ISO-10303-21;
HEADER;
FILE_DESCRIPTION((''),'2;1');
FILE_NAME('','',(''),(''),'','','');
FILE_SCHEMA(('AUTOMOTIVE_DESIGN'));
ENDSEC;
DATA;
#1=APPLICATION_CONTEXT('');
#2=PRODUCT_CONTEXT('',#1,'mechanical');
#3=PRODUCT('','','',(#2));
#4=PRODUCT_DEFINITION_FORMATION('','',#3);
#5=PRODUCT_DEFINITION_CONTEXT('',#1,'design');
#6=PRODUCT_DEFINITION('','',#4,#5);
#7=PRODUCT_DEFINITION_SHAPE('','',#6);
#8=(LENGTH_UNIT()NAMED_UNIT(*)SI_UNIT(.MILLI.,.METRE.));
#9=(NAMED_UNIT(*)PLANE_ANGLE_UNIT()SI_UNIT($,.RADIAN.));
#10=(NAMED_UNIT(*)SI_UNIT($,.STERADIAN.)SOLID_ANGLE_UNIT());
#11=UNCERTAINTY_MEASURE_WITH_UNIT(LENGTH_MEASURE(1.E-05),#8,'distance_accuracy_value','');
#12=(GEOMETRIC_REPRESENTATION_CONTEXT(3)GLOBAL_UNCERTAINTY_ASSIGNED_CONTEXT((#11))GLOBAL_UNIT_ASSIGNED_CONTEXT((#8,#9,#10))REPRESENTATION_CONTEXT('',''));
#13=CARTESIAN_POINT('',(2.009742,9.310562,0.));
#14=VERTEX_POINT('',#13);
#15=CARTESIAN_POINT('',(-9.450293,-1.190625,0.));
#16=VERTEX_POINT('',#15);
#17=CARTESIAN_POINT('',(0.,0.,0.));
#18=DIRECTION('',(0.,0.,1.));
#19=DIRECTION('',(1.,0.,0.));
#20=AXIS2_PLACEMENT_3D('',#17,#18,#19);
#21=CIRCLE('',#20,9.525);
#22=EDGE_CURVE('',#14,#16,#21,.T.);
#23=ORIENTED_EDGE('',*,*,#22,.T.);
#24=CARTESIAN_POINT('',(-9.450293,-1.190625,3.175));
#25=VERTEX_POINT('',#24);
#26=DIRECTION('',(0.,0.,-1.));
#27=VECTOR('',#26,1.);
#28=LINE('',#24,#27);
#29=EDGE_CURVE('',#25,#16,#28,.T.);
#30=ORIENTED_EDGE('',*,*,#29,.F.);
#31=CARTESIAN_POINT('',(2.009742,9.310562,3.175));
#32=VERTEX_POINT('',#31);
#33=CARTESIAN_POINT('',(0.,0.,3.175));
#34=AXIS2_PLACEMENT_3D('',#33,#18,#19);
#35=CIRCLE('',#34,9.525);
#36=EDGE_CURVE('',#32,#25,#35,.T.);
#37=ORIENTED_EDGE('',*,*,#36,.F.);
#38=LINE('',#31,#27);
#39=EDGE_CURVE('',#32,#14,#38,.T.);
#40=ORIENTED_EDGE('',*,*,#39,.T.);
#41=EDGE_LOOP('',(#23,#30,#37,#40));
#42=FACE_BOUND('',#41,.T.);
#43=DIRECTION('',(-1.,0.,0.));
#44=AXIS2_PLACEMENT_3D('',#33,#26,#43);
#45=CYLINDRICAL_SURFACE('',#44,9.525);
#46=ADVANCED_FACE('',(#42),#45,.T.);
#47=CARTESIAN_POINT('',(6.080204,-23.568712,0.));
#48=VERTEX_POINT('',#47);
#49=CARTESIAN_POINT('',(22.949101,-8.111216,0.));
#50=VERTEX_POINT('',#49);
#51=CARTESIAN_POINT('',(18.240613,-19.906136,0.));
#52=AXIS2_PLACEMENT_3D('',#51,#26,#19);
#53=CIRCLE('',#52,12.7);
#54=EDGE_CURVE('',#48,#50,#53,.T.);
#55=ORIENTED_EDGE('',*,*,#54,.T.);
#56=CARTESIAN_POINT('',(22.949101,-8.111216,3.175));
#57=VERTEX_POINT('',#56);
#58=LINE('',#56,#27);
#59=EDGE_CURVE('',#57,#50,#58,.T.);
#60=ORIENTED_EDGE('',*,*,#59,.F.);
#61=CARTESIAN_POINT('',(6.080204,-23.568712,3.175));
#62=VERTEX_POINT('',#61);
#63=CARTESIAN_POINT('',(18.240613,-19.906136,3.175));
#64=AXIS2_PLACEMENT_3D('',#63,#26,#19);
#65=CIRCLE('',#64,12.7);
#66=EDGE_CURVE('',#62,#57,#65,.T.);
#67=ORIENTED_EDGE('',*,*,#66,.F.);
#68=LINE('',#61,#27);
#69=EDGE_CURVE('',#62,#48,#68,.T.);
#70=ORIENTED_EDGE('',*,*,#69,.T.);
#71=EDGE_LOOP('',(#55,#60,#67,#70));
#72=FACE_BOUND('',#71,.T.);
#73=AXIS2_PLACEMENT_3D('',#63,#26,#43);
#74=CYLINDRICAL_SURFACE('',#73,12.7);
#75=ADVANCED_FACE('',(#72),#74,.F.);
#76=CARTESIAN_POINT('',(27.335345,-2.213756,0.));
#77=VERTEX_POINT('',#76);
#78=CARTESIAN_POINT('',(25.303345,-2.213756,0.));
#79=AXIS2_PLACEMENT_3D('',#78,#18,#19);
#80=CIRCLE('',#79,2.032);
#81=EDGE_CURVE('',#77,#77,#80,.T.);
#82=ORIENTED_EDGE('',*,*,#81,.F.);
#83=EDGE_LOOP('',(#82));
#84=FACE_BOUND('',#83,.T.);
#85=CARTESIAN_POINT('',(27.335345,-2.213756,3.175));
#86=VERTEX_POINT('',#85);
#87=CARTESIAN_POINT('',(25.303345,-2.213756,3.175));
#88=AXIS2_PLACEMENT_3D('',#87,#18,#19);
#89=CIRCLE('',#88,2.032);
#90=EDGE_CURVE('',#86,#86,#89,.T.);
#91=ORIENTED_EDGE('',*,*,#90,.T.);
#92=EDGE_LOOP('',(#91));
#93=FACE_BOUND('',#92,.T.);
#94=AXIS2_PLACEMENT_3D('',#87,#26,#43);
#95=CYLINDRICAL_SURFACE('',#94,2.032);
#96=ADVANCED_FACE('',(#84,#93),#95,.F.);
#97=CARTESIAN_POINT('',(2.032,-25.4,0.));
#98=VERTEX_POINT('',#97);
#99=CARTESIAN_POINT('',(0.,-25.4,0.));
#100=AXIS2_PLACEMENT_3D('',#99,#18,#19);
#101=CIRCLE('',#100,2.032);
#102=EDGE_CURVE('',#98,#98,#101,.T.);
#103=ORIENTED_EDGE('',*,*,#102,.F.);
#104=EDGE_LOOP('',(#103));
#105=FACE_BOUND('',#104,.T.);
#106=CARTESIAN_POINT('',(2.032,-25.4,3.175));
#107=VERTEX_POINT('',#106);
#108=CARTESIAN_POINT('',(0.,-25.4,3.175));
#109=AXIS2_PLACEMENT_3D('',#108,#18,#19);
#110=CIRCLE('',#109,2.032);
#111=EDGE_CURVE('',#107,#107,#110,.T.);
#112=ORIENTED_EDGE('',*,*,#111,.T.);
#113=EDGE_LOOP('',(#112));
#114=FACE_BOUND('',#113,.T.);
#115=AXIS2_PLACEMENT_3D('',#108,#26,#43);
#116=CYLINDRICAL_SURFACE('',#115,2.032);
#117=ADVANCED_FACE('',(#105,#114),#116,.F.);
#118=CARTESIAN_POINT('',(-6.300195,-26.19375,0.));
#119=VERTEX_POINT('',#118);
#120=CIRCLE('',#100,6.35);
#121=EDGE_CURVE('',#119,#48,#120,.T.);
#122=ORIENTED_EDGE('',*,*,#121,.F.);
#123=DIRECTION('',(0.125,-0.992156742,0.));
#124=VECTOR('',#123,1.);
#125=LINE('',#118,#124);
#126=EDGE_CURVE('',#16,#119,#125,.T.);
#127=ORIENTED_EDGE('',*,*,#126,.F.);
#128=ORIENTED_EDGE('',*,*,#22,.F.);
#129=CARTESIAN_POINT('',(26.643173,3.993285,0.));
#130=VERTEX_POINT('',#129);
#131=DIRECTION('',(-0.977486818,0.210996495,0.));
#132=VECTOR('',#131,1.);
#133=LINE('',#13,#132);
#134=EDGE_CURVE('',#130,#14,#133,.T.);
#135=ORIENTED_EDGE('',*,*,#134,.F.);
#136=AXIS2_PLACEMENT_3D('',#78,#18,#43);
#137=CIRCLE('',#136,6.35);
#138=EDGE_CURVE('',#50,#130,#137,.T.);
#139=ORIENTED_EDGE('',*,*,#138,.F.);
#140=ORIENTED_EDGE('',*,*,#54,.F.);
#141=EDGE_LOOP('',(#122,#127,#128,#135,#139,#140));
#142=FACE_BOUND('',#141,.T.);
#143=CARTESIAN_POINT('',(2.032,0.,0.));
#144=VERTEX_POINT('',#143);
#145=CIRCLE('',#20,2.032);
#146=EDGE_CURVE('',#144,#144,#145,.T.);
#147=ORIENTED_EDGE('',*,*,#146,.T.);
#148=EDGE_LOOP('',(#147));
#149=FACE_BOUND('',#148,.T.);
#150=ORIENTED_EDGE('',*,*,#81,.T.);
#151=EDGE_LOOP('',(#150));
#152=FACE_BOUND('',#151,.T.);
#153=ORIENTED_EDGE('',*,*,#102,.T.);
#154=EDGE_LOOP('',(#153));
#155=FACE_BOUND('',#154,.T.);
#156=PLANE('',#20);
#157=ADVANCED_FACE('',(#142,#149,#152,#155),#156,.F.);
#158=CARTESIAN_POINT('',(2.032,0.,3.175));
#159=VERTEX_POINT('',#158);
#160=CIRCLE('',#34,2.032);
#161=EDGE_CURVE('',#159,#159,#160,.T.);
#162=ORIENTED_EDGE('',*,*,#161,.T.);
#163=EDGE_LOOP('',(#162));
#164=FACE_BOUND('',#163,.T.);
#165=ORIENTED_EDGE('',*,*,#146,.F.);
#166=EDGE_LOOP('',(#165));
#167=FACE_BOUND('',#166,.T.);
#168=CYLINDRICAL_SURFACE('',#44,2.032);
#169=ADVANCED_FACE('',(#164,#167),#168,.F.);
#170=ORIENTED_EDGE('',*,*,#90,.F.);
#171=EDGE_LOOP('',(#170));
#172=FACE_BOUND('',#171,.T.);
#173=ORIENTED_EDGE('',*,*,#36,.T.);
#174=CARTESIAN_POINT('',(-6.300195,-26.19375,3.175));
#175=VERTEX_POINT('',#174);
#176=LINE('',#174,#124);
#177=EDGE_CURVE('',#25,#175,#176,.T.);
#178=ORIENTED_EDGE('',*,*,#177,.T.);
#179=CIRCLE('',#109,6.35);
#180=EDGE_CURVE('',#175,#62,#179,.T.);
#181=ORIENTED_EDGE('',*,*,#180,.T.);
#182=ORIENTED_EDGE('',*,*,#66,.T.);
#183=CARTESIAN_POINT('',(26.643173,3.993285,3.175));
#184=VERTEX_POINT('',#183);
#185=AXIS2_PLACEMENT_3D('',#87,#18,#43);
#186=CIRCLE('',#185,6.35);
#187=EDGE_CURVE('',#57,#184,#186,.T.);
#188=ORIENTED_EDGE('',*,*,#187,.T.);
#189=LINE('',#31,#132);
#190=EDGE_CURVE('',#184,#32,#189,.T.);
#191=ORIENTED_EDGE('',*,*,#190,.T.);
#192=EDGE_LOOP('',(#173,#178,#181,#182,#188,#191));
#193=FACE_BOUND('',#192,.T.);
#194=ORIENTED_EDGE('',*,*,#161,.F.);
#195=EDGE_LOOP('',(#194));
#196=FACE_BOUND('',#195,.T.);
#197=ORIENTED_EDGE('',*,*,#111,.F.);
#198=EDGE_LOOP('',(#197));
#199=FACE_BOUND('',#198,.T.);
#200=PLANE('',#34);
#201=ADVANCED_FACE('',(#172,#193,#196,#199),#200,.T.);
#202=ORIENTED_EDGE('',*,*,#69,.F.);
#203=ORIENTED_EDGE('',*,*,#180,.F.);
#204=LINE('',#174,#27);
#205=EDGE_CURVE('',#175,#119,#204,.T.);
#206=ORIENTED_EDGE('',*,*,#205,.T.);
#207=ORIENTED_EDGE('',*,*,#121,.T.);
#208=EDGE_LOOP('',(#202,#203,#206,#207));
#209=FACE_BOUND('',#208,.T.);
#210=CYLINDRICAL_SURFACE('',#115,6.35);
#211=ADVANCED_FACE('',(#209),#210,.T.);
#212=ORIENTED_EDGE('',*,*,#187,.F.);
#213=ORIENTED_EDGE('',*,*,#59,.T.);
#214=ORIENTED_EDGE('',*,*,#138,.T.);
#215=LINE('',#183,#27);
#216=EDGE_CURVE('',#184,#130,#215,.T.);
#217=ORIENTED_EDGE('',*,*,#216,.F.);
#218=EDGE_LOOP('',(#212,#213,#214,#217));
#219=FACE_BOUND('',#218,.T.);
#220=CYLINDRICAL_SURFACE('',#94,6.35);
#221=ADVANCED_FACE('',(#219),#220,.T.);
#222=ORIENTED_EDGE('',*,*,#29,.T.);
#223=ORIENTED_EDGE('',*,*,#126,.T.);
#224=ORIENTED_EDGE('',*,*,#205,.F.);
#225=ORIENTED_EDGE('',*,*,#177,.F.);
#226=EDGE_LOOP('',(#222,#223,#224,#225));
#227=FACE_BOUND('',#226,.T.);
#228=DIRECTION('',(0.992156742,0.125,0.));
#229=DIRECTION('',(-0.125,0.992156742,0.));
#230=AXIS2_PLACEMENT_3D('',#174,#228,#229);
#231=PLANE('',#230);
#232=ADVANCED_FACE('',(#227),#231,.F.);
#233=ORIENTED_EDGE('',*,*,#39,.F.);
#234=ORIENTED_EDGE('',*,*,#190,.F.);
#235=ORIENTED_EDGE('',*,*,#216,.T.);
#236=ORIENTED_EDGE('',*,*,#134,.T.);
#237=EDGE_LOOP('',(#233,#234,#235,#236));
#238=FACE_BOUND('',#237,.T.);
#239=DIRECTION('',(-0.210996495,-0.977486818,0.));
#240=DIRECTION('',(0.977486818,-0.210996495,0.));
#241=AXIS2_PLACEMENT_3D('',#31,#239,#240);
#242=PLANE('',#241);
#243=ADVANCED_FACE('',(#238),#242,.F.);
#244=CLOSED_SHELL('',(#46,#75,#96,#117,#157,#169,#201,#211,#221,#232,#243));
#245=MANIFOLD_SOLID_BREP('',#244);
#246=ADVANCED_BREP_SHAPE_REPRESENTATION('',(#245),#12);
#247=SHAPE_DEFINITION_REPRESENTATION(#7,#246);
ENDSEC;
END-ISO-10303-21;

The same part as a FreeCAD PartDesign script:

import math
import FreeCAD as App
import Part
import Sketcher
Q = App.Units.Quantity

doc = App.newDocument("Part")
body = doc.addObject("PartDesign::Body", "Body")

sketch1 = body.newObject("Sketcher::SketchObject", "Sketch")
sketch1.AttachmentSupport = (doc.getObject("XY_Plane"), [""])
sketch1.MapMode = "FlatFace"
sketch1.addGeometry(Part.LineSegment(App.Vector(-9.450293, -1.190625, 0), App.Vector(-6.300195, -26.19375, 0)), False)
sketch1.addGeometry(Part.ArcOfCircle(Part.Circle(App.Vector(0, -25.4, 0), App.Vector(0, 0, 1), 6.35), math.radians(-172.819244), math.radians(16.761701)), False)
sketch1.addGeometry(Part.ArcOfCircle(Part.Circle(App.Vector(18.240613, -19.906136, 0), App.Vector(0, 0, 1), 12.7), math.radians(68.238299), math.radians(196.761701)), False)
sketch1.addGeometry(Part.ArcOfCircle(Part.Circle(App.Vector(25.303345, -2.213756, 0), App.Vector(0, 0, 1), 6.35), math.radians(-111.761701), math.radians(77.819244)), False)
sketch1.addGeometry(Part.LineSegment(App.Vector(26.643173, 3.993285, 0), App.Vector(2.009742, 9.310562, 0)), False)
sketch1.addGeometry(Part.ArcOfCircle(Part.Circle(App.Vector(0, 0, 0), App.Vector(0, 0, 1), 9.525), math.radians(77.819244), math.radians(187.180756)), False)
sketch1.addGeometry(Part.Circle(App.Vector(0, -25.4, 0), App.Vector(0, 0, 1), 2.032), False)
sketch1.addGeometry(Part.Circle(App.Vector(25.303345, -2.213756, 0), App.Vector(0, 0, 1), 2.032), False)
sketch1.addGeometry(Part.Circle(App.Vector(0, 0, 0), App.Vector(0, 0, 1), 2.032), False)
sketch1.addConstraint(Sketcher.Constraint("Tangent", 0, 2, 1, 1))
sketch1.addConstraint(Sketcher.Constraint("Tangent", 1, 2, 2, 2))
sketch1.addConstraint(Sketcher.Constraint("Tangent", 2, 1, 3, 1))
sketch1.addConstraint(Sketcher.Constraint("Tangent", 3, 2, 4, 1))
sketch1.addConstraint(Sketcher.Constraint("Tangent", 4, 2, 5, 1))
sketch1.addConstraint(Sketcher.Constraint("Tangent", 5, 2, 0, 1))
sketch1.addConstraint(Sketcher.Constraint("Coincident", 5, 3, -1, 1))
sketch1.addConstraint(Sketcher.Constraint("Coincident", 8, 3, -1, 1))
sketch1.addConstraint(Sketcher.Constraint("Coincident", 6, 3, 1, 3))
sketch1.addConstraint(Sketcher.Constraint("Coincident", 7, 3, 3, 3))
sketch1.addConstraint(Sketcher.Constraint("Equal", 1, 3))
sketch1.addConstraint(Sketcher.Constraint("Equal", 6, 7))
sketch1.addConstraint(Sketcher.Constraint("Equal", 7, 8))
sketch1.addConstraint(Sketcher.Constraint("PointOnObject", 1, 3, -2))
sketch1.addConstraint(Sketcher.Constraint("Equal", 0, 4))
sketch1.addConstraint(Sketcher.Constraint("Radius", 2, Q("0.5 in")))
sketch1.addConstraint(Sketcher.Constraint("Diameter", 6, Q("0.16 in")))
sketch1.addConstraint(Sketcher.Constraint("Radius", 1, Q("0.25 in")))
sketch1.addConstraint(Sketcher.Constraint("DistanceY", 1, 3, -1, 1, Q("1 in")))
sketch1.addConstraint(Sketcher.Constraint("Radius", 5, Q("0.375 in")))
sketch1.addConstraint(Sketcher.Constraint("DistanceX", -1, 1, 2, 1, Q("22.949101 mm")))
pad1 = body.newObject("PartDesign::Pad", "Pad")
pad1.Profile = sketch1
pad1.Length = Q("0.125 in")

doc.recompute()
